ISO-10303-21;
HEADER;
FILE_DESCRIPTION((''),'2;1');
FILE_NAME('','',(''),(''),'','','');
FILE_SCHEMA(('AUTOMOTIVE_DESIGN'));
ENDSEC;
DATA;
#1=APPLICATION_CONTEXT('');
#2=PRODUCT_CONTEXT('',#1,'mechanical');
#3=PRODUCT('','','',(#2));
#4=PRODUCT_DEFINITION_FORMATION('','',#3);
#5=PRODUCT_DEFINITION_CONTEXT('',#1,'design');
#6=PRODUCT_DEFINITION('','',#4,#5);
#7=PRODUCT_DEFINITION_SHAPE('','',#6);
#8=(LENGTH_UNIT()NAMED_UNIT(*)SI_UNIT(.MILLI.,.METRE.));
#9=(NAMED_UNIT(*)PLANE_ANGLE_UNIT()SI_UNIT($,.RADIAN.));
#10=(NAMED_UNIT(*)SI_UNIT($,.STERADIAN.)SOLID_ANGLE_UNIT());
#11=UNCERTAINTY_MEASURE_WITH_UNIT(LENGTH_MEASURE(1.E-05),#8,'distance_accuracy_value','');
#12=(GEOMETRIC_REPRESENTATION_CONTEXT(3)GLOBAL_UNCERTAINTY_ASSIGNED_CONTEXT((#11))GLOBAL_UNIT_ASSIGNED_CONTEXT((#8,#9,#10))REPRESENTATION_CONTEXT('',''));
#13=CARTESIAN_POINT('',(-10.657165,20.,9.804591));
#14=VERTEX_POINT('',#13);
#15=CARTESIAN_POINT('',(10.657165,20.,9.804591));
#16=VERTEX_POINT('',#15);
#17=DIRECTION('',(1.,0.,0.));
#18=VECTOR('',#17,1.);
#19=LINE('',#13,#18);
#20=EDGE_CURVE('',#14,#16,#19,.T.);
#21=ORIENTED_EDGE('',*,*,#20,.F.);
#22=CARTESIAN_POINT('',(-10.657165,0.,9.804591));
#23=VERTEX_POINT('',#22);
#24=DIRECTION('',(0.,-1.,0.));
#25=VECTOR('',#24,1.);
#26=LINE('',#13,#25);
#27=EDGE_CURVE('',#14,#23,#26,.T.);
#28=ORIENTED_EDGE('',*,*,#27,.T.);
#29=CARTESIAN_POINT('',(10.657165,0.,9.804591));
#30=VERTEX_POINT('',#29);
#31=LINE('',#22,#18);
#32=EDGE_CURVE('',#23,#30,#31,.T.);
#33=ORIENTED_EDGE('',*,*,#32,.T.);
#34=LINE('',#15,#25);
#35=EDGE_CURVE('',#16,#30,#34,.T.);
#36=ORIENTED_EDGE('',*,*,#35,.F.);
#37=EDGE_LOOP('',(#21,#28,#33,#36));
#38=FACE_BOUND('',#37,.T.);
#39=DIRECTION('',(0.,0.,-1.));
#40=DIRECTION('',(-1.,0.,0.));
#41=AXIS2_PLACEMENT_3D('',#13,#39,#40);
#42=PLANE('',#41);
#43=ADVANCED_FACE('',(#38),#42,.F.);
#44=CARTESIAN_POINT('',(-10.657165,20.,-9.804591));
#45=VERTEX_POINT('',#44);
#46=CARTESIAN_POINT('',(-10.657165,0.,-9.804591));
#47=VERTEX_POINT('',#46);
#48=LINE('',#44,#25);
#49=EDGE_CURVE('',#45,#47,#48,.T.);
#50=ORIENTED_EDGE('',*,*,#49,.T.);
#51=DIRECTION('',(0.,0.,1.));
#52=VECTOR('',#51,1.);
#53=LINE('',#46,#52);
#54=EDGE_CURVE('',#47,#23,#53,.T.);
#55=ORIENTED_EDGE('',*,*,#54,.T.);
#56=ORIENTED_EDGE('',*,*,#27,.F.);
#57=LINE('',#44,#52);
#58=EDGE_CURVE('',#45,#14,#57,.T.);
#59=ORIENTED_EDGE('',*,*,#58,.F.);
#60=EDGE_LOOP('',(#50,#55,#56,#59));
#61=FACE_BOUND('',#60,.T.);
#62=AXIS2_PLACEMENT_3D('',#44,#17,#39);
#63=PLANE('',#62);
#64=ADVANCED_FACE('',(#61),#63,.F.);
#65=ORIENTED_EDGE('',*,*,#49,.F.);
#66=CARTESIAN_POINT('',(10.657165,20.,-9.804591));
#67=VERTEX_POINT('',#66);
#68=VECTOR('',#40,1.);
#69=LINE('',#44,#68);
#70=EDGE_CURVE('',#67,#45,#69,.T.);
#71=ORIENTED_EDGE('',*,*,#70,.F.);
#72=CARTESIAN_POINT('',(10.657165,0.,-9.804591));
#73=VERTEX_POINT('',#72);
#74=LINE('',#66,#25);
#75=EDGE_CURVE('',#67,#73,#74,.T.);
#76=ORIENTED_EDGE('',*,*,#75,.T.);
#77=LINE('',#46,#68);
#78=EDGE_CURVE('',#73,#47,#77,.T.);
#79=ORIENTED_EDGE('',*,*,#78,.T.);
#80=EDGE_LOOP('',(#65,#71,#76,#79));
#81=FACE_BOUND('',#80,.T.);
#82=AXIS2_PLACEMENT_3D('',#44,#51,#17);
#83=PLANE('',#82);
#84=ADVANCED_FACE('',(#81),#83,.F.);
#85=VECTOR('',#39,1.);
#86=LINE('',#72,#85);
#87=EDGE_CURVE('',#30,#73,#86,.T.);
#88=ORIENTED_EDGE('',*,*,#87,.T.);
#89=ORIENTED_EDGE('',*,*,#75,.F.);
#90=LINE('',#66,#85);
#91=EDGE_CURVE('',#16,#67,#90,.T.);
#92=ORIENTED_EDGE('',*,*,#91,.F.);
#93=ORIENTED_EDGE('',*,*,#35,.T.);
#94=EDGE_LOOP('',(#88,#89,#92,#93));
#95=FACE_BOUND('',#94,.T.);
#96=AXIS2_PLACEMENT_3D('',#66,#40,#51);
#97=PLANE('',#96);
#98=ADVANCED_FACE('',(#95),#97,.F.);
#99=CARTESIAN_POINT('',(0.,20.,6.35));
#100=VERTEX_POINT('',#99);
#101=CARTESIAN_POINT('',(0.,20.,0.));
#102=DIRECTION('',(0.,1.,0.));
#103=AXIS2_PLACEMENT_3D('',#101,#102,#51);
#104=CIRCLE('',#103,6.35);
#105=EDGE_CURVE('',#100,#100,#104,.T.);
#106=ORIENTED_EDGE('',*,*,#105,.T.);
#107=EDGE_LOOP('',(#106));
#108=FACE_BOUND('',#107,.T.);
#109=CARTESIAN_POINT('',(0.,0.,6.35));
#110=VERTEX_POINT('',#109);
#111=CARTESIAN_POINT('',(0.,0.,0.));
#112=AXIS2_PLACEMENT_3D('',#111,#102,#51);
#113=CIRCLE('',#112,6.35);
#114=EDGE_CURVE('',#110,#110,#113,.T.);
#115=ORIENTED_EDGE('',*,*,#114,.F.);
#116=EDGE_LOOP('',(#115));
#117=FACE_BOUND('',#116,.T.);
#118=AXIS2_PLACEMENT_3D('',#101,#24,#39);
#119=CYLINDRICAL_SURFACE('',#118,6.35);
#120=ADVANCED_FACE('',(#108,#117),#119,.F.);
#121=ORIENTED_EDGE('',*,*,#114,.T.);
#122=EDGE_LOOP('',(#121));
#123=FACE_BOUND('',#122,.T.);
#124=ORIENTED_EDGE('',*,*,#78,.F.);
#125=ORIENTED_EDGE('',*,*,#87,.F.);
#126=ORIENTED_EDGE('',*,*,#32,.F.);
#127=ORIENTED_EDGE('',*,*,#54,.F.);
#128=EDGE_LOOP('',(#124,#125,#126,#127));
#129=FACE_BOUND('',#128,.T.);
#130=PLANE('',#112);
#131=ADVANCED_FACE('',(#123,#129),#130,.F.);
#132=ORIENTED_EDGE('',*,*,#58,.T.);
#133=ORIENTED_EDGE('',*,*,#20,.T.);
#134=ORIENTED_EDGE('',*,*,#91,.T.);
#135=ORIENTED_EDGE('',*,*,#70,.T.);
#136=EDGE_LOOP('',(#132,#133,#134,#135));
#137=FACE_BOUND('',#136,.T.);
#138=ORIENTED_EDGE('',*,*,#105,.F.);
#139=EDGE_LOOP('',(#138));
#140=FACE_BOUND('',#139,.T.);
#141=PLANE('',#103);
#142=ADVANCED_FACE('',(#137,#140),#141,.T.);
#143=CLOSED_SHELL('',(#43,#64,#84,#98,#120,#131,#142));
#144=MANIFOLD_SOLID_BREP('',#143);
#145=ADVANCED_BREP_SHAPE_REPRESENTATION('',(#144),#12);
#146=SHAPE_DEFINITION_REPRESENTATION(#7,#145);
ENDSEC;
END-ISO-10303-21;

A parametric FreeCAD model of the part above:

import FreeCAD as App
import Part
import Sketcher

V = App.Vector

doc = App.newDocument("Part")
body = doc.addObject("PartDesign::Body", "Body")

sketch1 = body.newObject("Sketcher::SketchObject", "Sketch")
sketch1.AttachmentSupport = (doc.getObject("XZ_Plane"), [""])
sketch1.MapMode = "FlatFace"
sketch1.addGeometry([
    Part.LineSegment(V(-11, -10, 0), V(-11, 10, 0)),
    Part.LineSegment(V(-11, 10, 0), V(11, 10, 0)),
    Part.LineSegment(V(11, 10, 0), V(11, -10, 0)),
    Part.LineSegment(V(11, -10, 0), V(-11, -10, 0)),
    Part.Circle(V(0, 0, 0), V(0, 0, 1), 6),
], False)
sketch1.addConstraint([
    Sketcher.Constraint("Coincident", 0, 2, 1, 1),
    Sketcher.Constraint("Coincident", 1, 2, 2, 1),
    Sketcher.Constraint("Coincident", 2, 2, 3, 1),
    Sketcher.Constraint("Coincident", 3, 2, 0, 1),
    Sketcher.Constraint("Vertical", 0),
    Sketcher.Constraint("Horizontal", 1),
    Sketcher.Constraint("Vertical", 2),
    Sketcher.Constraint("Horizontal", 3),
    Sketcher.Constraint("Coincident", 4, 3, -1, 1),
    Sketcher.Constraint("Symmetric", 0, 2, 2, 2, -1, 1),
    Sketcher.Constraint("Diameter", 4, 12.7),
    Sketcher.Constraint("DistanceX", 1, 1, 1, 2, 21.314329),
    Sketcher.Constraint("DistanceY", 0, 1, 0, 2, 19.609183),
])
pad1 = body.newObject("PartDesign::Pad", "Pad")
pad1.Profile = sketch1
pad1.Length = 20
pad1.Reversed = True

doc.recompute()
